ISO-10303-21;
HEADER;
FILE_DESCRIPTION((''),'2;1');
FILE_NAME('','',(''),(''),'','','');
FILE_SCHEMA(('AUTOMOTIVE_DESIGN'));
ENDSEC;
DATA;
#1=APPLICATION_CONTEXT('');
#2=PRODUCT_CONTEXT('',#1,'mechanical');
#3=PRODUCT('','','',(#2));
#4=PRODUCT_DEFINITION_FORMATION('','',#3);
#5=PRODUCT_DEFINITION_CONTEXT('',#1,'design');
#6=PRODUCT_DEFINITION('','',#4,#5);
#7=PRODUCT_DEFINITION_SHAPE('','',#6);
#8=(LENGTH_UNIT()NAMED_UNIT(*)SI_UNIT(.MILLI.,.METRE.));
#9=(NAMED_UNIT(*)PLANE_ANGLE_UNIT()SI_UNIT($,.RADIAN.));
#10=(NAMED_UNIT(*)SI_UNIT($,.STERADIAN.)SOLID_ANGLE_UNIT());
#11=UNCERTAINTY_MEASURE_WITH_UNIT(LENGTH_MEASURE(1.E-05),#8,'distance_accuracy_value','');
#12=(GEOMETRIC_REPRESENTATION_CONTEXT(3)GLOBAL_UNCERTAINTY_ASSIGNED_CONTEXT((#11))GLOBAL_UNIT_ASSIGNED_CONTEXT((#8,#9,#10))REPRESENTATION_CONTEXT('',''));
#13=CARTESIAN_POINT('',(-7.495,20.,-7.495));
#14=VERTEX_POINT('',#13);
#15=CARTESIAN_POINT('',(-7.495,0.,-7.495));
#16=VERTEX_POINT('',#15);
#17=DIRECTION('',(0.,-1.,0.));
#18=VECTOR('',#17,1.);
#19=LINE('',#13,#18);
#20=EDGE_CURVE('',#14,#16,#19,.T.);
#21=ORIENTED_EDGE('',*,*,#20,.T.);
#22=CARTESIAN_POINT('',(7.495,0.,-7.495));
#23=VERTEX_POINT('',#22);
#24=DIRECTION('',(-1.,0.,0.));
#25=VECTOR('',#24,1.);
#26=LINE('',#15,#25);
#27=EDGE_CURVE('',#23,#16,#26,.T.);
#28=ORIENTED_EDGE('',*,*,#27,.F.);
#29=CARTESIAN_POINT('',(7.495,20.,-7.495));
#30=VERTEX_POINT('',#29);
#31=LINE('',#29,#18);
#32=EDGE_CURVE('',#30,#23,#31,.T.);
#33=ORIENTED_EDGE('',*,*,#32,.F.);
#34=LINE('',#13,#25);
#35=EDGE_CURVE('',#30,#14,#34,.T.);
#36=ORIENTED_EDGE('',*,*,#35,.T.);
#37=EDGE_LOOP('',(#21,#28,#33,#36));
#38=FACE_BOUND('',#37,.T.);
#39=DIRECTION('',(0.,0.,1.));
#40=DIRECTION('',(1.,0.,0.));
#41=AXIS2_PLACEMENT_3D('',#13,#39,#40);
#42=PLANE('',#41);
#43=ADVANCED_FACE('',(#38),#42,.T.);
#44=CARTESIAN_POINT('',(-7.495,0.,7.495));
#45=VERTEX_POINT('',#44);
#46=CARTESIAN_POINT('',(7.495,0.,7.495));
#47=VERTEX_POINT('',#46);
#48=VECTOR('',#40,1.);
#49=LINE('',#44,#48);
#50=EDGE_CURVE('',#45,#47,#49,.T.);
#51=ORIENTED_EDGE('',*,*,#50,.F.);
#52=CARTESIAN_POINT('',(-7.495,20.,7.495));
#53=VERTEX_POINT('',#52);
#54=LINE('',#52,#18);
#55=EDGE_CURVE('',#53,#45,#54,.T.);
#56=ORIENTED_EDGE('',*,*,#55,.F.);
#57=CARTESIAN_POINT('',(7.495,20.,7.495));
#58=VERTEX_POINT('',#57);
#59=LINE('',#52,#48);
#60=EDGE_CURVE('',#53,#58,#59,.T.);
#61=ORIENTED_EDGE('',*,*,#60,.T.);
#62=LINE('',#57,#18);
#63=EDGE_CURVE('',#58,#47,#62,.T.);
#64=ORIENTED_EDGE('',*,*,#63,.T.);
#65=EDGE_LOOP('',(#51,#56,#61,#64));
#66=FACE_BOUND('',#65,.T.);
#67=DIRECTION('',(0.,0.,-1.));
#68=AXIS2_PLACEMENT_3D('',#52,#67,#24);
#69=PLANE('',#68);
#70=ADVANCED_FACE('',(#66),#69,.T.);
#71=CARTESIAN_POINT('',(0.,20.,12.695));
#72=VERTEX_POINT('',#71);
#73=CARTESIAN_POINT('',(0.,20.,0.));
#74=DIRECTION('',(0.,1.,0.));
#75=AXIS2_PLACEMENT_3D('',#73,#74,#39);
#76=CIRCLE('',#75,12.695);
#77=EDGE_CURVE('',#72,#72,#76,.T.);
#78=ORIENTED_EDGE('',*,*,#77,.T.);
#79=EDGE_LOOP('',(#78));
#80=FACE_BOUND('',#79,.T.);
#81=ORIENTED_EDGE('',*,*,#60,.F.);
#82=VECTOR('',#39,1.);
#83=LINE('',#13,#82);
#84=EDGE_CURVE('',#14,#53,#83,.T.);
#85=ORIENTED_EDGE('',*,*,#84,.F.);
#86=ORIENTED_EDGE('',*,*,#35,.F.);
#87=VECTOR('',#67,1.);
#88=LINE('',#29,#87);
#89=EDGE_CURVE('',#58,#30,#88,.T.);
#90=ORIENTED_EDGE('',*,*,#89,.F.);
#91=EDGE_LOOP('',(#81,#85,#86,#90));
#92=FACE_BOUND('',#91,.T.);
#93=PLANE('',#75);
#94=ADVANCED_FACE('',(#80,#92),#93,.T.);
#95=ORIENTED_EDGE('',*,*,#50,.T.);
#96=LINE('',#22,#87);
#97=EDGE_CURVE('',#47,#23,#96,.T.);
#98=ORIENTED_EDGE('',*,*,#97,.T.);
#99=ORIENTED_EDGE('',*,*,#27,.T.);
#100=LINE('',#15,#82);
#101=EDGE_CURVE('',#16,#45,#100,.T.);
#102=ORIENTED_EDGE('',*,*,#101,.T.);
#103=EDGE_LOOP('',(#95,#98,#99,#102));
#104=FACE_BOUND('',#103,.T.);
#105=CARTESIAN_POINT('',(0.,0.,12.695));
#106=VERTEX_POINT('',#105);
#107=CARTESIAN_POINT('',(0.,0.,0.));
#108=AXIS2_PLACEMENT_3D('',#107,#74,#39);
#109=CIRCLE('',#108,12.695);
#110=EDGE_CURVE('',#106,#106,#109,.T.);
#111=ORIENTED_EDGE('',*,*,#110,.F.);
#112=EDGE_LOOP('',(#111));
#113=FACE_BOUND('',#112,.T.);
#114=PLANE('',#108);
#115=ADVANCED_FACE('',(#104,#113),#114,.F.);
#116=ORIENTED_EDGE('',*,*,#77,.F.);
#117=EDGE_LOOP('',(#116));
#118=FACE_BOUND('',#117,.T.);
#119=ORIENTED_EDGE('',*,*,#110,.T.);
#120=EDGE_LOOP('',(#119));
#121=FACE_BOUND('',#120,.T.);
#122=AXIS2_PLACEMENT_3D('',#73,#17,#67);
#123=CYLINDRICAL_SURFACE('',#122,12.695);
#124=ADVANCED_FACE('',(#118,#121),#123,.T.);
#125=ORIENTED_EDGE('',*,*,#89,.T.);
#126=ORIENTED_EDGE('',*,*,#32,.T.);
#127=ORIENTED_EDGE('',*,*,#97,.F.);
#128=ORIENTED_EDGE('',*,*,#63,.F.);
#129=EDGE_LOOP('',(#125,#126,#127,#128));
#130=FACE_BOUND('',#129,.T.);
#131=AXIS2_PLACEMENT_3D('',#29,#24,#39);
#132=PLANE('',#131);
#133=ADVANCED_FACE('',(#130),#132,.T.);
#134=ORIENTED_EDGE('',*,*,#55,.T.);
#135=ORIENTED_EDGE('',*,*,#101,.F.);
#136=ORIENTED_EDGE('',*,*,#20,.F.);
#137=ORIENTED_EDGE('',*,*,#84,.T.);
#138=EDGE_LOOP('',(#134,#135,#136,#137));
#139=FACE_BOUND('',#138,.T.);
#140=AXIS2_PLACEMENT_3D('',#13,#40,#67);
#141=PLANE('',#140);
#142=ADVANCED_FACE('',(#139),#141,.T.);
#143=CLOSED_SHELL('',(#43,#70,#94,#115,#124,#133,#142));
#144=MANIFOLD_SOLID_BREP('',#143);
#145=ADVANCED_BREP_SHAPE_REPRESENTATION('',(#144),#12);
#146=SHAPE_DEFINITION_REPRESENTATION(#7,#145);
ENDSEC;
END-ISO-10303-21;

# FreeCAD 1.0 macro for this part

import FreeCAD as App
import Part
import Sketcher

V = App.Vector

doc = App.newDocument("Part")
body = doc.addObject("PartDesign::Body", "Body")

sketch1 = body.newObject("Sketcher::SketchObject", "Sketch")
sketch1.AttachmentSupport = (doc.getObject("XZ_Plane"), [""])
sketch1.MapMode = "FlatFace"
sketch1.addGeometry([
    Part.Circle(V(0, 0, 0), V(0, 0, 1), 13),
    Part.LineSegment(V(7, 7, 0), V(-7, 7, 0)),
    Part.LineSegment(V(-7, 7, 0), V(-7, -7, 0)),
    Part.LineSegment(V(-7, -7, 0), V(7, -7, 0)),
    Part.LineSegment(V(7, -7, 0), V(7, 7, 0)),
], False)
sketch1.addConstraint([
    Sketcher.Constraint("Coincident", 1, 2, 2, 1),
    Sketcher.Constraint("Coincident", 2, 2, 3, 1),
    Sketcher.Constraint("Coincident", 3, 2, 4, 1),
    Sketcher.Constraint("Coincident", 4, 2, 1, 1),
    Sketcher.Constraint("Horizontal", 1),
    Sketcher.Constraint("Vertical", 2),
    Sketcher.Constraint("Horizontal", 3),
    Sketcher.Constraint("Vertical", 4),
    Sketcher.Constraint("Coincident", 0, 3, -1, 1),
    Sketcher.Constraint("Symmetric", 1, 2, 3, 2, -1, 1),
    Sketcher.Constraint("Equal", 3, 2),
    Sketcher.Constraint("Diameter", 0, 25.39),
    Sketcher.Constraint("DistanceX", 1, 2, 1, 1, 14.99),
])
pad1 = body.newObject("PartDesign::Pad", "Pad")
pad1.Profile = sketch1
pad1.Length = 20
pad1.Reversed = True

doc.recompute()
